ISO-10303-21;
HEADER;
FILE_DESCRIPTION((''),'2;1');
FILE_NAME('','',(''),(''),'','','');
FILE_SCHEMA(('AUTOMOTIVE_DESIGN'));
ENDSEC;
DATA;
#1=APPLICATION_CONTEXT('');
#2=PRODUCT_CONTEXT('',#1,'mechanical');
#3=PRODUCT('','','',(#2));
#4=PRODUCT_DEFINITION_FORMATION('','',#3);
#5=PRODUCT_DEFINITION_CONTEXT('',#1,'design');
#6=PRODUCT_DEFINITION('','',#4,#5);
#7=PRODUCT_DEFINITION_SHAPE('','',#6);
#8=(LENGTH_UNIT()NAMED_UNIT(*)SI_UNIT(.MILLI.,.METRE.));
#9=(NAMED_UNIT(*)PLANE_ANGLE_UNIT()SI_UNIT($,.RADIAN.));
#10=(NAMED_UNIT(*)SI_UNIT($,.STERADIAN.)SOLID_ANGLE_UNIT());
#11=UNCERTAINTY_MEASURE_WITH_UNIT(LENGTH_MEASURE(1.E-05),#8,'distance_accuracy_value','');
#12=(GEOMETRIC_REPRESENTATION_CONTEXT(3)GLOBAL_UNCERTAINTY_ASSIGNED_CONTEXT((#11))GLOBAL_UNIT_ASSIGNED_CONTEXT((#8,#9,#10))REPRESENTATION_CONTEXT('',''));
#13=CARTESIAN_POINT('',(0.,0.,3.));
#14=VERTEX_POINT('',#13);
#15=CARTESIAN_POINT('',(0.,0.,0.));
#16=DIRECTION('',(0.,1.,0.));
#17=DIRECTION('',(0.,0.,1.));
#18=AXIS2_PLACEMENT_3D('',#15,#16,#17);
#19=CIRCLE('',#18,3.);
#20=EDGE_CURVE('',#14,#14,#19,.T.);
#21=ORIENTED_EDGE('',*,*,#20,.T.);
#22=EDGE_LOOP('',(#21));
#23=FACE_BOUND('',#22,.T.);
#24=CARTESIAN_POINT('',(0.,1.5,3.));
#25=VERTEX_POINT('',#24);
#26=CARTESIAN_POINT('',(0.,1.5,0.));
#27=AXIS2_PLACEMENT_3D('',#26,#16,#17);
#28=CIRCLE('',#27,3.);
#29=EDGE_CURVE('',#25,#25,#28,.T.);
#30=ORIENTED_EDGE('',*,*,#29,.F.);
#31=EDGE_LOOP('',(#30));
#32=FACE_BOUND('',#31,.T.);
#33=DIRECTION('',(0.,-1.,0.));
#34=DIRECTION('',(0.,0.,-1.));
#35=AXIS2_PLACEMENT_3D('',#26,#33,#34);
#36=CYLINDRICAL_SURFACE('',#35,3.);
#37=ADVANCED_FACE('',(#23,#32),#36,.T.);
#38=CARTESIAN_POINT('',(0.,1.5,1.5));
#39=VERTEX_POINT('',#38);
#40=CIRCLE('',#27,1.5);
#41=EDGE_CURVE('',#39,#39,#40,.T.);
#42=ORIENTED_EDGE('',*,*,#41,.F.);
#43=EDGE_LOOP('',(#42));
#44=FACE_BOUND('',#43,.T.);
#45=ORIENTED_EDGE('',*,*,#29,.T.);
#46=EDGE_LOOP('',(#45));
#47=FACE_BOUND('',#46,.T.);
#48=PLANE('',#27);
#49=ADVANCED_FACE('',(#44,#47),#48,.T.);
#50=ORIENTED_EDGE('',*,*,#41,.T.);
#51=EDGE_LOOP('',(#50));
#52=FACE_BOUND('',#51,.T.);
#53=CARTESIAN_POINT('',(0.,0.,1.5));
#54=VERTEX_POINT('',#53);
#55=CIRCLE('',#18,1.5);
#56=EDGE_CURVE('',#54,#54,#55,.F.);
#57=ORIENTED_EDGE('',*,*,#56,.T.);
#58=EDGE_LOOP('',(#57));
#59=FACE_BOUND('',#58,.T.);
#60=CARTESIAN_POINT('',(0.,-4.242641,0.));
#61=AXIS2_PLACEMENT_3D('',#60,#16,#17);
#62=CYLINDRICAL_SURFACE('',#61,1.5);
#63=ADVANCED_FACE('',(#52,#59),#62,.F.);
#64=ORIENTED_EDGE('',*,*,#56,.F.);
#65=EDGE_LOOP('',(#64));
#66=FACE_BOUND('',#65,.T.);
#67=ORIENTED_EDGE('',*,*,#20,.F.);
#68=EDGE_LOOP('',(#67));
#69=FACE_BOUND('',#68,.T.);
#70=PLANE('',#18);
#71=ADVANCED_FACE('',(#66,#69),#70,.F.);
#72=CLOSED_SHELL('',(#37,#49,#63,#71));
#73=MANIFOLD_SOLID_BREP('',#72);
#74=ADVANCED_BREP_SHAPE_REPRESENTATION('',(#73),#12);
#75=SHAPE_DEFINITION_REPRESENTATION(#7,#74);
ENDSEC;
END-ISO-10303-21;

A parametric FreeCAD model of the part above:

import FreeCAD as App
import Part
import Sketcher
from FreeCAD import Vector
Q = App.Units.Quantity

doc = App.newDocument("Part")
params = doc.addObject("Spreadsheet::Sheet", "Params")
for row, (alias, value) in enumerate([
    ("sketch1_diameter", "6 mm"),
    ("pad1_length", "1.5 mm"),
    ("sketch2_diameter", "3 mm"),
    ("pocket1_length", "1.5 mm"),
], start=1):
    params.set(f"A{row}", alias)
    params.set(f"B{row}", "=" + value)
    params.setAlias(f"B{row}", alias)

body = doc.addObject("PartDesign::Body", "Body")

# Sketch on XZ plane
sketch1 = body.newObject("Sketcher::SketchObject", "Sketch")
sketch1.AttachmentSupport = (doc.getObject("XZ_Plane"), [""])
sketch1.MapMode = "FlatFace"
sketch1.addGeometry(Part.Circle(Vector(0, 0, 0), Vector(0, 0, 1), 3), False)
sketch1.addConstraint(Sketcher.Constraint("Coincident", 0, 3, -1, 1))
sketch1.addConstraint(Sketcher.Constraint("Diameter", 0, Q("6 mm")))
sketch1.setExpression("Constraints[1]", "Params.sketch1_diameter")
pad1 = body.newObject("PartDesign::Pad", "Pad")
pad1.Profile = sketch1
pad1.setExpression("Length", "Params.pad1_length")
pad1.Reversed = True

# Sketch on XZ plane
sketch2 = body.newObject("Sketcher::SketchObject", "Sketch001")
sketch2.AttachmentSupport = (doc.getObject("XZ_Plane"), [""])
sketch2.MapMode = "FlatFace"
sketch2.AttachmentOffset = App.Placement(Vector(0, 0, -1.5), App.Rotation())
sketch2.addGeometry(Part.Circle(Vector(0, 0, 0), Vector(0, 0, 1), 1.5), False)
sketch2.addConstraint(Sketcher.Constraint("Coincident", 0, 3, -1, 1))
sketch2.addConstraint(Sketcher.Constraint("Diameter", 0, Q("3 mm")))
sketch2.setExpression("Constraints[1]", "Params.sketch2_diameter")
pocket1 = body.newObject("PartDesign::Pocket", "Pocket")
pocket1.Profile = sketch2
pocket1.setExpression("Length", "Params.pocket1_length")
pocket1.Reversed = True

doc.recompute()
